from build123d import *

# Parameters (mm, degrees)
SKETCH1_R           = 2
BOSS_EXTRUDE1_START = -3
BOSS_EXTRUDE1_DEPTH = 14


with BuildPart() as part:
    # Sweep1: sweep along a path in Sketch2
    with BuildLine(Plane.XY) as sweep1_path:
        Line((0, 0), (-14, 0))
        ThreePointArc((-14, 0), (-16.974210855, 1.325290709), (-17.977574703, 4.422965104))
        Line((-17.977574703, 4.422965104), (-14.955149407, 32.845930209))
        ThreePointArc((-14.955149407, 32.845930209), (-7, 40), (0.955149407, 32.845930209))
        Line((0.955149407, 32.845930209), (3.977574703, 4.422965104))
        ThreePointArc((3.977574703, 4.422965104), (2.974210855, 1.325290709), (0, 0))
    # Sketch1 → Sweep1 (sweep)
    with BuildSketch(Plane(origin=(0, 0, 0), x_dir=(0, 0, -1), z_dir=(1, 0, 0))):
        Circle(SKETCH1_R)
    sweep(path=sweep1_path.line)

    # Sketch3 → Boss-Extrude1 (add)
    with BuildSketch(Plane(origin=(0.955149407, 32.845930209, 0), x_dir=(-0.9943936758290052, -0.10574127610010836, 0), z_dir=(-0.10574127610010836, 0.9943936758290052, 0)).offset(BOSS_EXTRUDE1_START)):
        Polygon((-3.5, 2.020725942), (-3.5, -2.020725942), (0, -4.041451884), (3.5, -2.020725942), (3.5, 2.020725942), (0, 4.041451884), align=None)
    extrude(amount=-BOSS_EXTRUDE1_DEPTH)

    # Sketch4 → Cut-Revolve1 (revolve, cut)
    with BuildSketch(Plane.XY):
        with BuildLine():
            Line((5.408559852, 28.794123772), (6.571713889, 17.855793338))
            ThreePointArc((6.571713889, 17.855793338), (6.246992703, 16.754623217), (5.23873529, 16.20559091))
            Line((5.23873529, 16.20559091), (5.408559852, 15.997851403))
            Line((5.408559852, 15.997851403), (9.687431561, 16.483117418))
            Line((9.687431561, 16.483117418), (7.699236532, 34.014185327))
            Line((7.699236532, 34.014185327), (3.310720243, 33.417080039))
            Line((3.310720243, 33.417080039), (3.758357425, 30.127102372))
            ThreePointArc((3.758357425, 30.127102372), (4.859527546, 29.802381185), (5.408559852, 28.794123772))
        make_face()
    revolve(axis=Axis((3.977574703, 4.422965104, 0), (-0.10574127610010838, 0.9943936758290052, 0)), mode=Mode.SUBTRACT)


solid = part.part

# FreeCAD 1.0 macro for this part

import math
import FreeCAD as App
import Part
import Sketcher
from FreeCAD import Vector
Q = App.Units.Quantity


def add_polygon(sketch, points):
    """Adds a closed chain of lines whose ends are joined by coincident constraints."""
    first, n = sketch.GeometryCount, len(points)
    for a, b in zip(points, points[1:] + points[:1]):
        sketch.addGeometry(Part.LineSegment(App.Vector(*a, 0), App.Vector(*b, 0)), False)
    for i in range(n):
        sketch.addConstraint(Sketcher.Constraint("Coincident", first + i, 2, first + (i + 1) % n, 1))

doc = App.newDocument("Part")
body = doc.addObject("PartDesign::Body", "Body")

sketch1 = body.newObject("Sketcher::SketchObject", "Sketch")
sketch1.AttachmentSupport = (doc.getObject("YZ_Plane"), [""])
sketch1.MapMode = "FlatFace"
sketch1.addGeometry(Part.Circle(Vector(0, 0, 0), Vector(0, 0, 1), 2), False)
sketch1.addConstraint(Sketcher.Constraint("Coincident", 0, 3, -1, 1))
sketch1.addConstraint(Sketcher.Constraint("Diameter", 0, Q("4 mm")))

sketch2 = body.newObject("Sketcher::SketchObject", "Sketch001")
sketch2.AttachmentSupport = (doc.getObject("XY_Plane"), [""])
sketch2.MapMode = "FlatFace"
sketch2.addGeometry(Part.LineSegment(Vector(0, 0, 0), Vector(-14, 0, 0)), False)
sketch2.addGeometry(Part.ArcOfCircle(Part.Circle(Vector(-14, 4, 0), Vector(0, 0, 1), 4), math.radians(174), math.radians(270)), False)
sketch2.addGeometry(Part.LineSegment(Vector(-18, 4.4, 0), Vector(-15, 32.8, 0)), False)
sketch2.addGeometry(Part.ArcOfCircle(Part.Circle(Vector(-7, 32, 0), Vector(0, 0, 1), 8), math.radians(6), math.radians(174)), False)
sketch2.addGeometry(Part.LineSegment(Vector(1, 32.8, 0), Vector(4, 4.4, 0)), False)
sketch2.addGeometry(Part.ArcOfCircle(Part.Circle(Vector(0, 4, 0), Vector(0, 0, 1), 4), math.radians(-90), math.radians(6)), False)
sketch2.addConstraint(Sketcher.Constraint("Tangent", 0, 2, 1, 2))
sketch2.addConstraint(Sketcher.Constraint("Tangent", 1, 1, 2, 1))
sketch2.addConstraint(Sketcher.Constraint("Tangent", 2, 2, 3, 2))
sketch2.addConstraint(Sketcher.Constraint("Tangent", 3, 1, 4, 1))
sketch2.addConstraint(Sketcher.Constraint("Tangent", 4, 2, 5, 2))
sketch2.addConstraint(Sketcher.Constraint("Tangent", 5, 1, 0, 1))
sketch2.addConstraint(Sketcher.Constraint("Horizontal", 0))
sketch2.addConstraint(Sketcher.Constraint("Coincident", 5, 1, -1, 1))
sketch2.addConstraint(Sketcher.Constraint("Equal", 1, 5))
sketch2.addConstraint(Sketcher.Constraint("Horizontal", 2, 2, 3, 1))
sketch2.addConstraint(Sketcher.Constraint("Radius", 1, Q("4 mm")))
sketch2.addConstraint(Sketcher.Constraint("Radius", 3, Q("8 mm")))
sketch2.addConstraint(Sketcher.Constraint("DistanceX", 0, 2, 0, 1, Q("14 mm")))
sketch2.addConstraint(Sketcher.Constraint("DistanceY", -1, 1, 3, 3, Q("32 mm")))
doc.recompute()

additivepipe = body.newObject("PartDesign::AdditivePipe", "AdditivePipe")
additivepipe.Profile = sketch1
additivepipe.Spine = (sketch2, ["Edge1", "Edge2", "Edge3", "Edge4", "Edge5", "Edge6"])

sketch3 = body.newObject("Sketcher::SketchObject", "Sketch002")
sketch3.Placement = App.Placement(Vector(1.272373, 29.862749, 0), App.Rotation(Vector(-0.994393676, -0.105741276, 0), Vector(0, 0, 1), Vector(-0.105741276, 0.994393676, 0), "ZXY"))
add_polygon(sketch3, [(-3.5, 2), (-3.5, -2), (0, -4), (3.5, -2), (3.5, 2), (0, 4)])
sketch3.addConstraint(Sketcher.Constraint("Vertical", 0))
sketch3.addConstraint(Sketcher.Constraint("Vertical", 3))
sketch3.addConstraint(Sketcher.Constraint("Symmetric", 0, 2, 3, 2, -1, 1))
sketch3.addConstraint(Sketcher.Constraint("Symmetric", 1, 2, 4, 2, -1, 1))
sketch3.addConstraint(Sketcher.Constraint("PointOnObject", 1, 2, -2))
sketch3.addConstraint(Sketcher.Constraint("Parallel", 2, 5))
sketch3.addConstraint(Sketcher.Constraint("Horizontal", 0, 2, 2, 2))
sketch3.addConstraint(Sketcher.Constraint("Angle", 1, Q("-30 deg")))
sketch3.addConstraint(Sketcher.Constraint("DistanceX", 0, 2, 2, 2, Q("7 mm")))
sketch3.addConstraint(Sketcher.Constraint("DistanceY", 0, 2, 0, 1, Q("4.041452 mm")))
pad1 = body.newObject("PartDesign::Pad", "Pad")
pad1.Profile = sketch3
pad1.Length = 14
pad1.Reversed = True

sketch4 = body.newObject("Sketcher::SketchObject", "Sketch003")
sketch4.AttachmentSupport = (doc.getObject("XY_Plane"), [""])
sketch4.MapMode = "FlatFace"
sketch4.addGeometry(Part.LineSegment(Vector(5.41, 28.79, 0), Vector(6.57, 17.86, 0)), False)
sketch4.addGeometry(Part.ArcOfCircle(Part.Circle(Vector(5.08, 17.7, 0), Vector(0, 0, 1), 1.5), math.radians(-84), math.radians(6)), False)
sketch4.addGeometry(Part.LineSegment(Vector(5.24, 16.21, 0), Vector(5.41, 16, 0)), False)
sketch4.addGeometry(Part.LineSegment(Vector(5.41, 16, 0), Vector(9.69, 16.48, 0)), False)
sketch4.addGeometry(Part.LineSegment(Vector(9.69, 16.48, 0), Vector(7.7, 34.01, 0)), False)
sketch4.addGeometry(Part.LineSegment(Vector(7.7, 34.01, 0), Vector(3.31, 33.42, 0)), False)
sketch4.addGeometry(Part.LineSegment(Vector(3.31, 33.42, 0), Vector(3.76, 30.13, 0)), False)
sketch4.addGeometry(Part.ArcOfCircle(Part.Circle(Vector(3.92, 28.64, 0), Vector(0, 0, 1), 1.5), math.radians(6), math.radians(96)), False)
sketch4.addGeometry(Part.LineSegment(Vector(2.78, 15.72, 0), Vector(0.91, 33.29, 0)), True)
sketch4.addConstraint(Sketcher.Constraint("Tangent", 0, 2, 1, 2))
sketch4.addConstraint(Sketcher.Constraint("Coincident", 1, 1, 2, 1))
sketch4.addConstraint(Sketcher.Constraint("Coincident", 2, 2, 3, 1))
sketch4.addConstraint(Sketcher.Constraint("Coincident", 3, 2, 4, 1))
sketch4.addConstraint(Sketcher.Constraint("Coincident", 4, 2, 5, 1))
sketch4.addConstraint(Sketcher.Constraint("Coincident", 5, 2, 6, 1))
sketch4.addConstraint(Sketcher.Constraint("Coincident", 6, 2, 7, 2))
sketch4.addConstraint(Sketcher.Constraint("Tangent", 7, 1, 0, 1))
sketch4.addConstraint(Sketcher.Constraint("Equal", 1, 7))
sketch4.addConstraint(Sketcher.Constraint("Perpendicular", 3, 4))
sketch4.addConstraint(Sketcher.Constraint("Perpendicular", 5, 6))
sketch4.addConstraint(Sketcher.Constraint("Parallel", 0, 8))
sketch4.addConstraint(Sketcher.Constraint("Vertical", 2, 2, 7, 1))
sketch4.addConstraint(Sketcher.Constraint("Radius", 1, Q("1.5 mm")))
sketch4.addConstraint(Sketcher.Constraint("Distance", 0, Q("11 mm")))
sketch4.addConstraint(Sketcher.Constraint("Distance", 3, Q("4.306301 mm")))
sketch4.addConstraint(Sketcher.Constraint("DistanceX", 1, 1, 4, 2, Q("2.460501 mm")))
sketch4.addConstraint(Sketcher.Constraint("DistanceY", 1, 3, 5, 2, Q("15.719899 mm")))
sketch4.addConstraint(Sketcher.Constraint("Distance", 2, Q("0.268321 mm")))
sketch4.addConstraint(Sketcher.Constraint("Distance", 4, Q("17.643448 mm")))
sketch4.addConstraint(Sketcher.Constraint("Distance", 5, Q("4.428951 mm")))
sketch4.addConstraint(Sketcher.Constraint("Distance", 6, Q("3.320291 mm")))
sketch4.addConstraint(Sketcher.Constraint("Distance", 8, Q("17.673109 mm")))
sketch4.addConstraint(Sketcher.Constraint("DistanceY", -1, 1, 1, 3, Q("17.697181 mm")))
sketch4.addConstraint(Sketcher.Constraint("DistanceX", -1, 1, 7, 3, Q("3.916969 mm")))
sketch4.addConstraint(Sketcher.Constraint("DistanceY", -1, 1, 7, 3, Q("28.635512 mm")))
sketch4.addConstraint(Sketcher.Constraint("DistanceX", 8, 1, 1, 1, Q("2.462242 mm")))
sketch4.addConstraint(Sketcher.Constraint("DistanceY", 8, 1, 0, 2, Q("2.137829 mm")))
groove = body.newObject("PartDesign::Groove", "Groove")
groove.Profile = sketch4
groove.ReferenceAxis = (sketch4, ["Axis0"])
groove.Angle = 360

doc.recompute()
